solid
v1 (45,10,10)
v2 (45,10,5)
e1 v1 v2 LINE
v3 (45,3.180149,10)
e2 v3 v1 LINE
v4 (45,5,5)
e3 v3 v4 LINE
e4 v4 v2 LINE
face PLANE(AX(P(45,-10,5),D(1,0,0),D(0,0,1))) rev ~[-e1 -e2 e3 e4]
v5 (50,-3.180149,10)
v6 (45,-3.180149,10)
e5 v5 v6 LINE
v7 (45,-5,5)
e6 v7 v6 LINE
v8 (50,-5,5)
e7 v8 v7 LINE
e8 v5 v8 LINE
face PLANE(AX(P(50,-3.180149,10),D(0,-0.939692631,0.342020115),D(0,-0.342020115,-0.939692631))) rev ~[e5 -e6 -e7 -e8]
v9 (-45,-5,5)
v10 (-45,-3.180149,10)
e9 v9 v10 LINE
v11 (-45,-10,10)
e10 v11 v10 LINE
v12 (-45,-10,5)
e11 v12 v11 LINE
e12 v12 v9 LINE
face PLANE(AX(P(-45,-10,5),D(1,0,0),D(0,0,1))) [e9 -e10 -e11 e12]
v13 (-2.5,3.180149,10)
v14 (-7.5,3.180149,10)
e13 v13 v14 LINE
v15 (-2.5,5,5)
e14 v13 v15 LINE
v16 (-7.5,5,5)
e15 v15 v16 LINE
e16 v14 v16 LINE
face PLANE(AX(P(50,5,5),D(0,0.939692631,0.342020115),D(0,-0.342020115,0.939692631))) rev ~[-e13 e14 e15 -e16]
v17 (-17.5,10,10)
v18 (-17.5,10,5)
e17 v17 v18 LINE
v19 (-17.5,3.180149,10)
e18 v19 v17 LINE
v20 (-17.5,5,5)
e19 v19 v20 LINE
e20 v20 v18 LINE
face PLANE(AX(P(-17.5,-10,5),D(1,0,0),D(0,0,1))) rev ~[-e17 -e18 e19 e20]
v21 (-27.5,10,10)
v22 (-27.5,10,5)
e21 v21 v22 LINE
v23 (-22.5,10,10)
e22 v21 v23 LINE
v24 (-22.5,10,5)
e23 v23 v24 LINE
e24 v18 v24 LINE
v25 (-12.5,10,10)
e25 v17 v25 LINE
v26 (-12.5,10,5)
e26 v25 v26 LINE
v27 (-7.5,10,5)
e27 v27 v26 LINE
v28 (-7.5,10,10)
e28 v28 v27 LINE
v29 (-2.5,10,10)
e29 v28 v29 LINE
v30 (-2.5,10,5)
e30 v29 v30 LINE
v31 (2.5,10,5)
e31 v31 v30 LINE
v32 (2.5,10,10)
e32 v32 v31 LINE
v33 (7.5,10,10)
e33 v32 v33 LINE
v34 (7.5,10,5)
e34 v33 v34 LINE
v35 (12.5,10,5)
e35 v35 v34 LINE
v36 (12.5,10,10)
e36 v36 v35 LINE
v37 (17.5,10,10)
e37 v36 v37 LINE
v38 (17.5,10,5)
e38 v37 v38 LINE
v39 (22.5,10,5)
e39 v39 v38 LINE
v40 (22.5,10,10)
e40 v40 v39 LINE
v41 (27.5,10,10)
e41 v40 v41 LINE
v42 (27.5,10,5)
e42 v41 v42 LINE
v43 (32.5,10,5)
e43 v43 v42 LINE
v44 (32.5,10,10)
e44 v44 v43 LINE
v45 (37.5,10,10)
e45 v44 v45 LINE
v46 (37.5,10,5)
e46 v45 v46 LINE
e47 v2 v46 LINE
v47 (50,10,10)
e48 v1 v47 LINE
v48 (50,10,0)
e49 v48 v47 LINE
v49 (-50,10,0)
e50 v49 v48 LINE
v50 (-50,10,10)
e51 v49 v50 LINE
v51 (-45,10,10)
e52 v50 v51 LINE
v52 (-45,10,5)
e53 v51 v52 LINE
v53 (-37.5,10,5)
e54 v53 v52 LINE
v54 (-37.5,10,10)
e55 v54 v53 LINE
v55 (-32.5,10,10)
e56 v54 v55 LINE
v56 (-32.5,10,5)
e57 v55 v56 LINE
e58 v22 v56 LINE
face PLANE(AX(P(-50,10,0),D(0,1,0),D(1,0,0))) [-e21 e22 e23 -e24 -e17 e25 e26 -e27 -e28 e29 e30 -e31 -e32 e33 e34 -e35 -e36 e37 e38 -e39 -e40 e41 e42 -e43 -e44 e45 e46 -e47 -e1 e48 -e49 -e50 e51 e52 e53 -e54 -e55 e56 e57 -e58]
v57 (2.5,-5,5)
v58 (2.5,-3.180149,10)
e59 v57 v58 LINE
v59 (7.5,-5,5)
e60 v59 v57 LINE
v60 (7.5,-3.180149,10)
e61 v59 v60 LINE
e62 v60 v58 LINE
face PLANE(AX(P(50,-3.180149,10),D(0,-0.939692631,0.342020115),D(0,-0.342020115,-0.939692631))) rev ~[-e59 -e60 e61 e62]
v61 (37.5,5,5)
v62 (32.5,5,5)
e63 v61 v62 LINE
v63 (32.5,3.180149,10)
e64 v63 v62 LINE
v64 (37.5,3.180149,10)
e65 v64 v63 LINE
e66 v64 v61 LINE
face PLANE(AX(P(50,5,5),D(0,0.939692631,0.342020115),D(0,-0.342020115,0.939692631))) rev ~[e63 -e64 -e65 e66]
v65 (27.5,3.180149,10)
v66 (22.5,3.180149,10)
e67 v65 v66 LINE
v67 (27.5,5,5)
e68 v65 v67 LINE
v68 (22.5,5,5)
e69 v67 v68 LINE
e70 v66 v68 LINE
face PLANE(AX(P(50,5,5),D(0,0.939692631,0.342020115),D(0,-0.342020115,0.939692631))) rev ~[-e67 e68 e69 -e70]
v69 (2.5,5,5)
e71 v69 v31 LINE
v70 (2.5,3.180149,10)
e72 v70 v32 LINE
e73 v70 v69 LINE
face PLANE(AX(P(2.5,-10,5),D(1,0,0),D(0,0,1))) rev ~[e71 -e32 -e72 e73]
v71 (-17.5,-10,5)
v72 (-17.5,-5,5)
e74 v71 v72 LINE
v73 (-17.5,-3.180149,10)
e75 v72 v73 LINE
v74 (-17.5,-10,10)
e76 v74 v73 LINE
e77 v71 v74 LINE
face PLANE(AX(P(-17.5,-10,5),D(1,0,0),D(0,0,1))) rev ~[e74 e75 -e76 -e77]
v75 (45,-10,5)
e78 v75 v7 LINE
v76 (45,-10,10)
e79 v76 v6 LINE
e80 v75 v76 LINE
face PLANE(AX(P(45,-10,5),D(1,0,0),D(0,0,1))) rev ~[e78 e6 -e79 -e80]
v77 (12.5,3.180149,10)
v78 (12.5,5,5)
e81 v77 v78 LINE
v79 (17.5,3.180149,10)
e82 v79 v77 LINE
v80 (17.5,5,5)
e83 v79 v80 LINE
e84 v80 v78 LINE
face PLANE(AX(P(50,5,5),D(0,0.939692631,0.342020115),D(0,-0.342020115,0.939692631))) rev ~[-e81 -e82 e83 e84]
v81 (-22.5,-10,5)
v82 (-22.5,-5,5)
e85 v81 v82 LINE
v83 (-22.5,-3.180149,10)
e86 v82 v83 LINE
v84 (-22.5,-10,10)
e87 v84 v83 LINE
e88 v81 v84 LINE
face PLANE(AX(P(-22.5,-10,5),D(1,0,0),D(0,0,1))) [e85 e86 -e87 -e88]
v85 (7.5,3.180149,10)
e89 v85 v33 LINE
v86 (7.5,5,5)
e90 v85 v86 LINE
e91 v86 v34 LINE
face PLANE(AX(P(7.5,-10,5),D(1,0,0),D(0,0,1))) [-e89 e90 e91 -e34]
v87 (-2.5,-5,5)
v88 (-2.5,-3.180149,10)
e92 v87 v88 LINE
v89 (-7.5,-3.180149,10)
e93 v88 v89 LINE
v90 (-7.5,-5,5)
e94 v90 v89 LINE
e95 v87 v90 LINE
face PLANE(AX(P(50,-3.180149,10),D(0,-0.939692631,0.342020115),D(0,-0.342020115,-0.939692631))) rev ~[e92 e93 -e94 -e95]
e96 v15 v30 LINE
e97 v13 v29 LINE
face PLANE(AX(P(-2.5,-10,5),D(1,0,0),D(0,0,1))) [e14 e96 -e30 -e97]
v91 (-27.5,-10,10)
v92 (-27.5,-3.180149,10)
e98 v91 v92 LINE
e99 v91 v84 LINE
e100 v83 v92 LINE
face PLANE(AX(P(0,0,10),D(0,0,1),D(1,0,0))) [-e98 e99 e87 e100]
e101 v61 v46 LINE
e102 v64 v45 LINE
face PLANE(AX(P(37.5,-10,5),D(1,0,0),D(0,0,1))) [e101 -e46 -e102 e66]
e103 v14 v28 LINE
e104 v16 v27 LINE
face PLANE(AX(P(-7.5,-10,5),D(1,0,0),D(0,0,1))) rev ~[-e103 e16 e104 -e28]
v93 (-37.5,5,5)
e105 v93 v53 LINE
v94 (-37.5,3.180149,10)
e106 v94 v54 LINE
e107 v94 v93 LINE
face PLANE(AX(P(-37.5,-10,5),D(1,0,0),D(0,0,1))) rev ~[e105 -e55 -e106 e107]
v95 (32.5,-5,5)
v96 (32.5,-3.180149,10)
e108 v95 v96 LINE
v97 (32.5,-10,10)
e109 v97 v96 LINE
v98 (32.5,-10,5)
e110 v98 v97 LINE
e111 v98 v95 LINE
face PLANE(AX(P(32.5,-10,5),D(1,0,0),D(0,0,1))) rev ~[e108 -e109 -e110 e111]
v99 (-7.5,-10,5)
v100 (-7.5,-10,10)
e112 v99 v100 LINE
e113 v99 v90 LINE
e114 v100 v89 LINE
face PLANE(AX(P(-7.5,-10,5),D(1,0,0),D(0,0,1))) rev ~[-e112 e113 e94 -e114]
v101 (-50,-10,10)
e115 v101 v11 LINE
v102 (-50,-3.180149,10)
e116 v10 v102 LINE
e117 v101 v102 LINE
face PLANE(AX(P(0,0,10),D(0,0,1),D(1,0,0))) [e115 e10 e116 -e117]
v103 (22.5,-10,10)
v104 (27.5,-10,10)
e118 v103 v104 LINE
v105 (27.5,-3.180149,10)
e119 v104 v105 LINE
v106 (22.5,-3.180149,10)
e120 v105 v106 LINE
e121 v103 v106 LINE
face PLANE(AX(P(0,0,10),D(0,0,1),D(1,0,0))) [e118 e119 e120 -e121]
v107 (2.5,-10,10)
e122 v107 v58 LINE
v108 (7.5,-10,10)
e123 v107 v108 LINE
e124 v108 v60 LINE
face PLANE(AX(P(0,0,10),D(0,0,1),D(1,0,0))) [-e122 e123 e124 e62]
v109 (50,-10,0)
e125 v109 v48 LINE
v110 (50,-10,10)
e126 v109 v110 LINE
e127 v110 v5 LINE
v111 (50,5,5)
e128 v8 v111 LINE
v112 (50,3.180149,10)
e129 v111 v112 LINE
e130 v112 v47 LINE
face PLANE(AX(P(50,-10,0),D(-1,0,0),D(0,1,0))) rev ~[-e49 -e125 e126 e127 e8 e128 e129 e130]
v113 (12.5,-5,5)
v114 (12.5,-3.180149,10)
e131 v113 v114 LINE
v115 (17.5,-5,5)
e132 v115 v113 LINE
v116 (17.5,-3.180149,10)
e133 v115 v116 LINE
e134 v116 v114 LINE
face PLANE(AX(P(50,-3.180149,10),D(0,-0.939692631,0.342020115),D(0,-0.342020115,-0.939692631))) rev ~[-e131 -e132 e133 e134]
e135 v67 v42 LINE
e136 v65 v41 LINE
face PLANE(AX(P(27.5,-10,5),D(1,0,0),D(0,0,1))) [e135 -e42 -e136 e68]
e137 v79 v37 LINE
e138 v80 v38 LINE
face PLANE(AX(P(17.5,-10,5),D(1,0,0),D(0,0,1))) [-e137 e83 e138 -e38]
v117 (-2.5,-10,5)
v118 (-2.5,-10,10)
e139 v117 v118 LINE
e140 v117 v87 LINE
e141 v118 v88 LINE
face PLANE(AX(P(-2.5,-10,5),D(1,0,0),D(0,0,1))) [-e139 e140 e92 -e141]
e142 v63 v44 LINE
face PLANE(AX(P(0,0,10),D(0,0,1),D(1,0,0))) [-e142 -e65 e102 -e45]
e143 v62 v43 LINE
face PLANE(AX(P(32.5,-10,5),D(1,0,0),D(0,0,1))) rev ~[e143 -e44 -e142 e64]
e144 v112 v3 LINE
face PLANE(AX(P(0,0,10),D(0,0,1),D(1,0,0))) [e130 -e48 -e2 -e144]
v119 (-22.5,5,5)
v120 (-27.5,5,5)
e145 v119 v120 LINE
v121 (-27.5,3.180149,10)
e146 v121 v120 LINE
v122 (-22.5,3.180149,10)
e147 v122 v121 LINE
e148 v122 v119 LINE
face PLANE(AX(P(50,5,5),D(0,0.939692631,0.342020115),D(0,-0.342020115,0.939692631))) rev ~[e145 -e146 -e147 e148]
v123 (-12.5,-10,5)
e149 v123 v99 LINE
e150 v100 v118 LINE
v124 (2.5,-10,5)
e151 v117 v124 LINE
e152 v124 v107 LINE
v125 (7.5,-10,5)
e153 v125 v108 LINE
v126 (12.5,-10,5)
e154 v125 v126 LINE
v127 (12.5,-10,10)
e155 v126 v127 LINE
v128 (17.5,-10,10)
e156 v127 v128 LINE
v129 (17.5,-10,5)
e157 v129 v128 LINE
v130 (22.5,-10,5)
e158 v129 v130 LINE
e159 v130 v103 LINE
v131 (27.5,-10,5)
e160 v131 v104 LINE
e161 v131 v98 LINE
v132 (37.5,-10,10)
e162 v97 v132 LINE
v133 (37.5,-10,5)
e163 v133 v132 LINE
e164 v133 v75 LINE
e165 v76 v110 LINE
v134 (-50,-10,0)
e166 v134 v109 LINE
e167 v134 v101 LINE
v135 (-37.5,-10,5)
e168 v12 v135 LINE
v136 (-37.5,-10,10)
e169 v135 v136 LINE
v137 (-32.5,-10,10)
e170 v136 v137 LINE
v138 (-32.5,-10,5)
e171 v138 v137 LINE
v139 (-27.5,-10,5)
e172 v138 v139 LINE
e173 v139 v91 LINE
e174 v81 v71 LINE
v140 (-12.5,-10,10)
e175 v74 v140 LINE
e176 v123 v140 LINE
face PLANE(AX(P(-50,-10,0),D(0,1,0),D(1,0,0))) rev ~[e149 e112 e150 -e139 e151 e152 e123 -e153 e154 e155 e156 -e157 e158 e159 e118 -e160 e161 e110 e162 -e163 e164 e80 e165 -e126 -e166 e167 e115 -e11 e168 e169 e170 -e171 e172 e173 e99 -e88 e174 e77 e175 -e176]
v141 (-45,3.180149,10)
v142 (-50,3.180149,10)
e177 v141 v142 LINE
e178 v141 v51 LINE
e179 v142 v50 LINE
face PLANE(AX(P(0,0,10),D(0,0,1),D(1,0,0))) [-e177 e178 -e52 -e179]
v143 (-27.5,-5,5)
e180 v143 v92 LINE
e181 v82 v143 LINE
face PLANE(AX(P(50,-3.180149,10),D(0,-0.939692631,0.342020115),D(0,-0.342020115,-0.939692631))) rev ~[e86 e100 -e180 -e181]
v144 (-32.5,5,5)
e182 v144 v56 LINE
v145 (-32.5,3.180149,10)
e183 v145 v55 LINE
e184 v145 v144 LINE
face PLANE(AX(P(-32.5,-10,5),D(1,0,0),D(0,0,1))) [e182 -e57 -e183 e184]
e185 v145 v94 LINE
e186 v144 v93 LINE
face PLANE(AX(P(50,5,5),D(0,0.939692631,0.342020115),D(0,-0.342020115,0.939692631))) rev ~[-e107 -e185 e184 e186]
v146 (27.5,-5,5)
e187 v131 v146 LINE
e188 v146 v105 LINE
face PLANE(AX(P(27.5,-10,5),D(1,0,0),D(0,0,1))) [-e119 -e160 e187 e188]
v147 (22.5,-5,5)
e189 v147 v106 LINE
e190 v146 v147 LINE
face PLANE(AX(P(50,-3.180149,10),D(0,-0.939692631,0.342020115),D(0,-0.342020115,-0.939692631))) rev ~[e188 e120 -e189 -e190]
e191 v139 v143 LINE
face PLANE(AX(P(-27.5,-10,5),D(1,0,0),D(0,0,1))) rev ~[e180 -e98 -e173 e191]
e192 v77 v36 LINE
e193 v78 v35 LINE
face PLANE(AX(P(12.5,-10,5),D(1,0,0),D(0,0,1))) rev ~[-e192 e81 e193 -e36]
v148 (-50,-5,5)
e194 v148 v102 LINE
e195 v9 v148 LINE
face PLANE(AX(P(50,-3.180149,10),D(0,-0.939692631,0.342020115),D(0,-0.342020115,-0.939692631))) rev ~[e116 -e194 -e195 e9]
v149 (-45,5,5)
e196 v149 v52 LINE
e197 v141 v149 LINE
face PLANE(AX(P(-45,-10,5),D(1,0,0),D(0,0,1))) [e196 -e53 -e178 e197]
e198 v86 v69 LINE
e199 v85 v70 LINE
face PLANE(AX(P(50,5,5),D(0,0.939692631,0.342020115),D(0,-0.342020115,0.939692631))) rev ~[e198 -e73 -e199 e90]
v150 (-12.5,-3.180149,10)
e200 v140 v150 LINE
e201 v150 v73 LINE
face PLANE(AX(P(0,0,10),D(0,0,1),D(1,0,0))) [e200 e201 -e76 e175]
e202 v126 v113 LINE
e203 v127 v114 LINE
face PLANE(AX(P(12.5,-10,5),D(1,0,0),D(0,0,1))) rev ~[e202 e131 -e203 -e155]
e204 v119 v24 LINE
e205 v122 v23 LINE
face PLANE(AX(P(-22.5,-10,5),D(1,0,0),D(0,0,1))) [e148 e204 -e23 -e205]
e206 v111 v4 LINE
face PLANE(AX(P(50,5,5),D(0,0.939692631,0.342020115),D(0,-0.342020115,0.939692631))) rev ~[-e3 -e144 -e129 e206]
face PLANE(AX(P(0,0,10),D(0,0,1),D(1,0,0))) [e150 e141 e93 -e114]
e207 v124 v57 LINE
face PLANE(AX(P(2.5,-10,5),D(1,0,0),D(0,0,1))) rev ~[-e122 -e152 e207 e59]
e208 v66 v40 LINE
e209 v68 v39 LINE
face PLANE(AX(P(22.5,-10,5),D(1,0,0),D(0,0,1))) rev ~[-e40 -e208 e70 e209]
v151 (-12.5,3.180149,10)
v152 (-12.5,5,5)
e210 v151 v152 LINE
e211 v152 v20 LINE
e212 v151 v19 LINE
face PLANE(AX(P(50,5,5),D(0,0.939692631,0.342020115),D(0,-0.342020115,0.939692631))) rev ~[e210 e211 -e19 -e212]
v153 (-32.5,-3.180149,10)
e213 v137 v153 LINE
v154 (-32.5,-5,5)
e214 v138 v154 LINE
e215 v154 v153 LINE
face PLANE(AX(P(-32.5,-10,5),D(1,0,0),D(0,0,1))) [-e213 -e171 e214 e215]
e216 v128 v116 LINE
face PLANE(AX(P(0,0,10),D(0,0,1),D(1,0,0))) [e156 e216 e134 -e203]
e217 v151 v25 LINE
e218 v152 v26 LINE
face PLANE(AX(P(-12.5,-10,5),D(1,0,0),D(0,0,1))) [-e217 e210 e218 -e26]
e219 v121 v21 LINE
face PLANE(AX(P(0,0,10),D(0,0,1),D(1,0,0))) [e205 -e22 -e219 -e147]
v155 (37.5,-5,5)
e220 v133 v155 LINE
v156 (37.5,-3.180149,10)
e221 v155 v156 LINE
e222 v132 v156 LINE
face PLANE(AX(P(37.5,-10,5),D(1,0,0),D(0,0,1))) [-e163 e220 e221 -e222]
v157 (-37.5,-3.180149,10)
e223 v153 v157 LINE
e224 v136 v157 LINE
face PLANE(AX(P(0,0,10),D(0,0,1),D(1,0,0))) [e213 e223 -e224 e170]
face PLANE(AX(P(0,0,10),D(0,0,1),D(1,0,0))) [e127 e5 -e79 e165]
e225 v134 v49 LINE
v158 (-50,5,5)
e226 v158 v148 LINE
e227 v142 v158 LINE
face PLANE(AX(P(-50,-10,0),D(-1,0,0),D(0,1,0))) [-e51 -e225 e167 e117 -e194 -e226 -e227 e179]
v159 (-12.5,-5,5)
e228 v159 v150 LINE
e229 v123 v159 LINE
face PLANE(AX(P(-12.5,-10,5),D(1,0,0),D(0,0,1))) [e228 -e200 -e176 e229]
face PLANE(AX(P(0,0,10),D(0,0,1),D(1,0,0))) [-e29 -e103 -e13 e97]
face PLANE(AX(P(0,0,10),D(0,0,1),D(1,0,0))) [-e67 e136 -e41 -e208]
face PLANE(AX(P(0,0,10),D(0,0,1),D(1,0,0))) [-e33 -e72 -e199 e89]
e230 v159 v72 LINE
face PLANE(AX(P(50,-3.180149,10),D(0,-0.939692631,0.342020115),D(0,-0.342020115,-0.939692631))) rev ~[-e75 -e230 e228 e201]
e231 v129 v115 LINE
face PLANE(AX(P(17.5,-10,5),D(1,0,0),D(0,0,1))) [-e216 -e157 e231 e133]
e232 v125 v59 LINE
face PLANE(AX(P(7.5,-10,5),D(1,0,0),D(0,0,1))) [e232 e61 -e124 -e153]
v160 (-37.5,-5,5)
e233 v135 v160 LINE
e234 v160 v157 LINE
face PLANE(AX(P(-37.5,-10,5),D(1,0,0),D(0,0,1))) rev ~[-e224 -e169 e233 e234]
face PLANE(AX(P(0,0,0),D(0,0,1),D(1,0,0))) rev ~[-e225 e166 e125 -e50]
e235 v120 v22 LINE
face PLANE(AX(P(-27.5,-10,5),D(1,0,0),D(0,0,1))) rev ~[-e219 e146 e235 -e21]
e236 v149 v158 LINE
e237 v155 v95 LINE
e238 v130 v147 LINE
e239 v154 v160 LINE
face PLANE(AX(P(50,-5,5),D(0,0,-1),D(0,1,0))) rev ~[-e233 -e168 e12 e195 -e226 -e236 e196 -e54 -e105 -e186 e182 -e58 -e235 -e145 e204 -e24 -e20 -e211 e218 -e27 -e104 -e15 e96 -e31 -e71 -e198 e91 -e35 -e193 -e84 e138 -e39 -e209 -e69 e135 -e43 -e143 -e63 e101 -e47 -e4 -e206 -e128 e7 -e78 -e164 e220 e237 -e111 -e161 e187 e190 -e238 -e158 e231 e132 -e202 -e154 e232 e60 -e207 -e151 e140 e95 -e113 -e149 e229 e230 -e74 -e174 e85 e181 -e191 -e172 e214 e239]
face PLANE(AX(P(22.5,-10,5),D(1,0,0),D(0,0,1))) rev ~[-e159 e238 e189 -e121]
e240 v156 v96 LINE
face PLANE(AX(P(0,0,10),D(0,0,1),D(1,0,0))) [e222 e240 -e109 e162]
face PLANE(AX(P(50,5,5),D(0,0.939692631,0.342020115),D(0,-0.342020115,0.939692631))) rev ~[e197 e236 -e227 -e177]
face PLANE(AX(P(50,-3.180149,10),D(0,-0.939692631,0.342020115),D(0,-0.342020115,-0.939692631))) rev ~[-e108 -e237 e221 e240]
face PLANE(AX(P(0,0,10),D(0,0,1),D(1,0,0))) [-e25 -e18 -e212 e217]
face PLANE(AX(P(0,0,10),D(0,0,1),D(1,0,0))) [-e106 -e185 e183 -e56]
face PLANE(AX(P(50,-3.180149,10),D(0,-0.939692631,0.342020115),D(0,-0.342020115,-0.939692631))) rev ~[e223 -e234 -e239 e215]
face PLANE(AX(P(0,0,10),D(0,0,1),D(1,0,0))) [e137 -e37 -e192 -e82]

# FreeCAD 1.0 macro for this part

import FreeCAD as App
import Part
import Sketcher
Q = App.Units.Quantity


def add_polygon(sketch, points):
    """Adds a closed chain of lines whose ends are joined by coincident constraints."""
    first, n = sketch.GeometryCount, len(points)
    for a, b in zip(points, points[1:] + points[:1]):
        sketch.addGeometry(Part.LineSegment(App.Vector(*a, 0), App.Vector(*b, 0)), False)
    for i in range(n):
        sketch.addConstraint(Sketcher.Constraint("Coincident", first + i, 2, first + (i + 1) % n, 1))

doc = App.newDocument("Part")
body = doc.addObject("PartDesign::Body", "Body")

sketch1 = doc.addObject("Sketcher::SketchObject", "Sketch")
body.addObject(sketch1)
sketch1.AttachmentSupport = (doc.XY_Plane, [""])
sketch1.MapMode = "FlatFace"
add_polygon(sketch1, [(-50, 10), (-50, -10), (50, -10), (50, 10)])
sketch1.addConstraint([
    Sketcher.Constraint("Vertical", 0),
    Sketcher.Constraint("Horizontal", 1),
    Sketcher.Constraint("Vertical", 2),
    Sketcher.Constraint("Horizontal", 3),
    Sketcher.Constraint("Symmetric", 0, 2, 2, 2, -1, 1),
    Sketcher.Constraint("DistanceX", 1, 1, 1, 2, 100.0),
    Sketcher.Constraint("DistanceY", 0, 2, 0, 1, 20.0),
])
pad1 = doc.addObject("PartDesign::Pad", "Pad")
body.addObject(pad1)
pad1.Profile = sketch1
pad1.Length = 10

sketch2 = doc.addObject("Sketcher::SketchObject", "Sketch001")
body.addObject(sketch2)
sketch2.AttachmentSupport = (doc.YZ_Plane, [""])
sketch2.MapMode = "FlatFace"
sketch2.AttachmentOffset = App.Placement(App.Vector(0, 0, 50), App.Rotation())
add_polygon(sketch2, [(3, 10), (-3, 10), (-5, 5), (5, 5)])
sketch2.addConstraint([
    Sketcher.Constraint("Horizontal", 0),
    Sketcher.Constraint("Horizontal", 2),
    Sketcher.Constraint("Equal", 1, 3),
    Sketcher.Constraint("DistanceX", 2, 1, 2, 2, 10.0),
    Sketcher.Constraint("Angle", 1, Q("-109.999998 deg")),
    Sketcher.Constraint("DistanceY", -1, 1, 0, 2, 10.0),
    Sketcher.Constraint("DistanceX", 1, 2, -1, 1, 5.0),
    Sketcher.Constraint("DistanceY", -1, 1, 1, 2, 5.0),
])
pocket1 = doc.addObject("PartDesign::Pocket", "Pocket")
body.addObject(pocket1)
pocket1.Profile = sketch2
pocket1.Type = "ThroughAll"

sketch3 = doc.addObject("Sketcher::SketchObject", "Sketch002")
body.addObject(sketch3)
sketch3.AttachmentSupport = (doc.XZ_Plane, [""])
sketch3.MapMode = "FlatFace"
sketch3.AttachmentOffset = App.Placement(App.Vector(0, 0, 10), App.Rotation())
add_polygon(sketch3, [(-45, 10), (-45, 5), (-38, 5), (-38, 10)])
add_polygon(sketch3, [(-32, 10), (-32, 5), (-28, 5), (-28, 10)])
add_polygon(sketch3, [(-22, 10), (-22, 5), (-18, 5), (-18, 10)])
add_polygon(sketch3, [(-12, 10), (-12, 5), (-8, 5), (-8, 10)])
add_polygon(sketch3, [(-2, 10), (-2, 5), (2, 5), (2, 10)])
add_polygon(sketch3, [(8, 10), (8, 5), (12, 5), (12, 10)])
add_polygon(sketch3, [(18, 10), (18, 5), (22, 5), (22, 10)])
add_polygon(sketch3, [(28, 10), (28, 5), (32, 5), (32, 10)])
add_polygon(sketch3, [(38, 10), (38, 5), (45, 5), (45, 10)])
sketch3.addConstraint([
    Sketcher.Constraint("Vertical", 0),
    Sketcher.Constraint("Horizontal", 1),
    Sketcher.Constraint("Vertical", 2),
    Sketcher.Constraint("Horizontal", 3),
    Sketcher.Constraint("Vertical", 4),
    Sketcher.Constraint("Horizontal", 5),
    Sketcher.Constraint("Vertical", 6),
    Sketcher.Constraint("Horizontal", 7),
    Sketcher.Constraint("Vertical", 8),
    Sketcher.Constraint("Horizontal", 9),
    Sketcher.Constraint("Vertical", 10),
    Sketcher.Constraint("Horizontal", 11),
    Sketcher.Constraint("Vertical", 12),
    Sketcher.Constraint("Horizontal", 13),
    Sketcher.Constraint("Vertical", 14),
    Sketcher.Constraint("Horizontal", 15),
    Sketcher.Constraint("Vertical", 16),
    Sketcher.Constraint("Horizontal", 17),
    Sketcher.Constraint("Vertical", 18),
    Sketcher.Constraint("Horizontal", 19),
    Sketcher.Constraint("Vertical", 20),
    Sketcher.Constraint("Horizontal", 21),
    Sketcher.Constraint("Vertical", 22),
    Sketcher.Constraint("Horizontal", 23),
    Sketcher.Constraint("Vertical", 24),
    Sketcher.Constraint("Horizontal", 25),
    Sketcher.Constraint("Vertical", 26),
    Sketcher.Constraint("Horizontal", 27),
    Sketcher.Constraint("Vertical", 28),
    Sketcher.Constraint("Horizontal", 29),
    Sketcher.Constraint("Vertical", 30),
    Sketcher.Constraint("Horizontal", 31),
    Sketcher.Constraint("Vertical", 32),
    Sketcher.Constraint("Horizontal", 33),
    Sketcher.Constraint("Vertical", 34),
    Sketcher.Constraint("Horizontal", 35),
    Sketcher.Constraint("Symmetric", 13, 2, 20, 2, -2),
    Sketcher.Constraint("Symmetric", 15, 2, 22, 2, -2),
    Sketcher.Constraint("Symmetric", 9, 2, 24, 2, -2),
    Sketcher.Constraint("Symmetric", 11, 2, 26, 2, -2),
    Sketcher.Constraint("Symmetric", 5, 2, 28, 2, -2),
    Sketcher.Constraint("Symmetric", 7, 2, 30, 2, -2),
    Sketcher.Constraint("Symmetric", 1, 2, 32, 2, -2),
    Sketcher.Constraint("Symmetric", 3, 2, 34, 2, -2),
    Sketcher.Constraint("Horizontal", 1, 2, 4, 2),
    Sketcher.Constraint("Horizontal", 3, 2, 6, 2),
    Sketcher.Constraint("Horizontal", 5, 2, 8, 2),
    Sketcher.Constraint("Horizontal", 7, 2, 10, 2),
    Sketcher.Constraint("Horizontal", 9, 2, 12, 2),
    Sketcher.Constraint("Horizontal", 11, 2, 14, 2),
    Sketcher.Constraint("Horizontal", 13, 2, 16, 2),
    Sketcher.Constraint("Horizontal", 15, 2, 18, 2),
    Sketcher.Constraint("Equal", 7, 9),
    Sketcher.Constraint("Equal", 11, 13),
    Sketcher.Constraint("Equal", 15, 17),
    Sketcher.Constraint("Equal", 31, 0),
    Sketcher.Constraint("DistanceX", 5, 1, 5, 2, 5.0),
    Sketcher.Constraint("DistanceX", 1, 1, 1, 2, 7.5),
    Sketcher.Constraint("DistanceX", 0, 2, -1, 1, 45.0),
    Sketcher.Constraint("DistanceY", -1, 1, 0, 2, 5.0),
    Sketcher.Constraint("DistanceX", 1, 2, 4, 2, 5.0),
    Sketcher.Constraint("DistanceX", 5, 2, 8, 2, 5.0),
    Sketcher.Constraint("DistanceX", 9, 2, 12, 2, 5.0),
    Sketcher.Constraint("DistanceX", 13, 2, 16, 2, 5.0),
])
pocket2 = doc.addObject("PartDesign::Pocket", "Pocket001")
body.addObject(pocket2)
pocket2.Profile = sketch3
pocket2.Type = "ThroughAll"

doc.recompute()
